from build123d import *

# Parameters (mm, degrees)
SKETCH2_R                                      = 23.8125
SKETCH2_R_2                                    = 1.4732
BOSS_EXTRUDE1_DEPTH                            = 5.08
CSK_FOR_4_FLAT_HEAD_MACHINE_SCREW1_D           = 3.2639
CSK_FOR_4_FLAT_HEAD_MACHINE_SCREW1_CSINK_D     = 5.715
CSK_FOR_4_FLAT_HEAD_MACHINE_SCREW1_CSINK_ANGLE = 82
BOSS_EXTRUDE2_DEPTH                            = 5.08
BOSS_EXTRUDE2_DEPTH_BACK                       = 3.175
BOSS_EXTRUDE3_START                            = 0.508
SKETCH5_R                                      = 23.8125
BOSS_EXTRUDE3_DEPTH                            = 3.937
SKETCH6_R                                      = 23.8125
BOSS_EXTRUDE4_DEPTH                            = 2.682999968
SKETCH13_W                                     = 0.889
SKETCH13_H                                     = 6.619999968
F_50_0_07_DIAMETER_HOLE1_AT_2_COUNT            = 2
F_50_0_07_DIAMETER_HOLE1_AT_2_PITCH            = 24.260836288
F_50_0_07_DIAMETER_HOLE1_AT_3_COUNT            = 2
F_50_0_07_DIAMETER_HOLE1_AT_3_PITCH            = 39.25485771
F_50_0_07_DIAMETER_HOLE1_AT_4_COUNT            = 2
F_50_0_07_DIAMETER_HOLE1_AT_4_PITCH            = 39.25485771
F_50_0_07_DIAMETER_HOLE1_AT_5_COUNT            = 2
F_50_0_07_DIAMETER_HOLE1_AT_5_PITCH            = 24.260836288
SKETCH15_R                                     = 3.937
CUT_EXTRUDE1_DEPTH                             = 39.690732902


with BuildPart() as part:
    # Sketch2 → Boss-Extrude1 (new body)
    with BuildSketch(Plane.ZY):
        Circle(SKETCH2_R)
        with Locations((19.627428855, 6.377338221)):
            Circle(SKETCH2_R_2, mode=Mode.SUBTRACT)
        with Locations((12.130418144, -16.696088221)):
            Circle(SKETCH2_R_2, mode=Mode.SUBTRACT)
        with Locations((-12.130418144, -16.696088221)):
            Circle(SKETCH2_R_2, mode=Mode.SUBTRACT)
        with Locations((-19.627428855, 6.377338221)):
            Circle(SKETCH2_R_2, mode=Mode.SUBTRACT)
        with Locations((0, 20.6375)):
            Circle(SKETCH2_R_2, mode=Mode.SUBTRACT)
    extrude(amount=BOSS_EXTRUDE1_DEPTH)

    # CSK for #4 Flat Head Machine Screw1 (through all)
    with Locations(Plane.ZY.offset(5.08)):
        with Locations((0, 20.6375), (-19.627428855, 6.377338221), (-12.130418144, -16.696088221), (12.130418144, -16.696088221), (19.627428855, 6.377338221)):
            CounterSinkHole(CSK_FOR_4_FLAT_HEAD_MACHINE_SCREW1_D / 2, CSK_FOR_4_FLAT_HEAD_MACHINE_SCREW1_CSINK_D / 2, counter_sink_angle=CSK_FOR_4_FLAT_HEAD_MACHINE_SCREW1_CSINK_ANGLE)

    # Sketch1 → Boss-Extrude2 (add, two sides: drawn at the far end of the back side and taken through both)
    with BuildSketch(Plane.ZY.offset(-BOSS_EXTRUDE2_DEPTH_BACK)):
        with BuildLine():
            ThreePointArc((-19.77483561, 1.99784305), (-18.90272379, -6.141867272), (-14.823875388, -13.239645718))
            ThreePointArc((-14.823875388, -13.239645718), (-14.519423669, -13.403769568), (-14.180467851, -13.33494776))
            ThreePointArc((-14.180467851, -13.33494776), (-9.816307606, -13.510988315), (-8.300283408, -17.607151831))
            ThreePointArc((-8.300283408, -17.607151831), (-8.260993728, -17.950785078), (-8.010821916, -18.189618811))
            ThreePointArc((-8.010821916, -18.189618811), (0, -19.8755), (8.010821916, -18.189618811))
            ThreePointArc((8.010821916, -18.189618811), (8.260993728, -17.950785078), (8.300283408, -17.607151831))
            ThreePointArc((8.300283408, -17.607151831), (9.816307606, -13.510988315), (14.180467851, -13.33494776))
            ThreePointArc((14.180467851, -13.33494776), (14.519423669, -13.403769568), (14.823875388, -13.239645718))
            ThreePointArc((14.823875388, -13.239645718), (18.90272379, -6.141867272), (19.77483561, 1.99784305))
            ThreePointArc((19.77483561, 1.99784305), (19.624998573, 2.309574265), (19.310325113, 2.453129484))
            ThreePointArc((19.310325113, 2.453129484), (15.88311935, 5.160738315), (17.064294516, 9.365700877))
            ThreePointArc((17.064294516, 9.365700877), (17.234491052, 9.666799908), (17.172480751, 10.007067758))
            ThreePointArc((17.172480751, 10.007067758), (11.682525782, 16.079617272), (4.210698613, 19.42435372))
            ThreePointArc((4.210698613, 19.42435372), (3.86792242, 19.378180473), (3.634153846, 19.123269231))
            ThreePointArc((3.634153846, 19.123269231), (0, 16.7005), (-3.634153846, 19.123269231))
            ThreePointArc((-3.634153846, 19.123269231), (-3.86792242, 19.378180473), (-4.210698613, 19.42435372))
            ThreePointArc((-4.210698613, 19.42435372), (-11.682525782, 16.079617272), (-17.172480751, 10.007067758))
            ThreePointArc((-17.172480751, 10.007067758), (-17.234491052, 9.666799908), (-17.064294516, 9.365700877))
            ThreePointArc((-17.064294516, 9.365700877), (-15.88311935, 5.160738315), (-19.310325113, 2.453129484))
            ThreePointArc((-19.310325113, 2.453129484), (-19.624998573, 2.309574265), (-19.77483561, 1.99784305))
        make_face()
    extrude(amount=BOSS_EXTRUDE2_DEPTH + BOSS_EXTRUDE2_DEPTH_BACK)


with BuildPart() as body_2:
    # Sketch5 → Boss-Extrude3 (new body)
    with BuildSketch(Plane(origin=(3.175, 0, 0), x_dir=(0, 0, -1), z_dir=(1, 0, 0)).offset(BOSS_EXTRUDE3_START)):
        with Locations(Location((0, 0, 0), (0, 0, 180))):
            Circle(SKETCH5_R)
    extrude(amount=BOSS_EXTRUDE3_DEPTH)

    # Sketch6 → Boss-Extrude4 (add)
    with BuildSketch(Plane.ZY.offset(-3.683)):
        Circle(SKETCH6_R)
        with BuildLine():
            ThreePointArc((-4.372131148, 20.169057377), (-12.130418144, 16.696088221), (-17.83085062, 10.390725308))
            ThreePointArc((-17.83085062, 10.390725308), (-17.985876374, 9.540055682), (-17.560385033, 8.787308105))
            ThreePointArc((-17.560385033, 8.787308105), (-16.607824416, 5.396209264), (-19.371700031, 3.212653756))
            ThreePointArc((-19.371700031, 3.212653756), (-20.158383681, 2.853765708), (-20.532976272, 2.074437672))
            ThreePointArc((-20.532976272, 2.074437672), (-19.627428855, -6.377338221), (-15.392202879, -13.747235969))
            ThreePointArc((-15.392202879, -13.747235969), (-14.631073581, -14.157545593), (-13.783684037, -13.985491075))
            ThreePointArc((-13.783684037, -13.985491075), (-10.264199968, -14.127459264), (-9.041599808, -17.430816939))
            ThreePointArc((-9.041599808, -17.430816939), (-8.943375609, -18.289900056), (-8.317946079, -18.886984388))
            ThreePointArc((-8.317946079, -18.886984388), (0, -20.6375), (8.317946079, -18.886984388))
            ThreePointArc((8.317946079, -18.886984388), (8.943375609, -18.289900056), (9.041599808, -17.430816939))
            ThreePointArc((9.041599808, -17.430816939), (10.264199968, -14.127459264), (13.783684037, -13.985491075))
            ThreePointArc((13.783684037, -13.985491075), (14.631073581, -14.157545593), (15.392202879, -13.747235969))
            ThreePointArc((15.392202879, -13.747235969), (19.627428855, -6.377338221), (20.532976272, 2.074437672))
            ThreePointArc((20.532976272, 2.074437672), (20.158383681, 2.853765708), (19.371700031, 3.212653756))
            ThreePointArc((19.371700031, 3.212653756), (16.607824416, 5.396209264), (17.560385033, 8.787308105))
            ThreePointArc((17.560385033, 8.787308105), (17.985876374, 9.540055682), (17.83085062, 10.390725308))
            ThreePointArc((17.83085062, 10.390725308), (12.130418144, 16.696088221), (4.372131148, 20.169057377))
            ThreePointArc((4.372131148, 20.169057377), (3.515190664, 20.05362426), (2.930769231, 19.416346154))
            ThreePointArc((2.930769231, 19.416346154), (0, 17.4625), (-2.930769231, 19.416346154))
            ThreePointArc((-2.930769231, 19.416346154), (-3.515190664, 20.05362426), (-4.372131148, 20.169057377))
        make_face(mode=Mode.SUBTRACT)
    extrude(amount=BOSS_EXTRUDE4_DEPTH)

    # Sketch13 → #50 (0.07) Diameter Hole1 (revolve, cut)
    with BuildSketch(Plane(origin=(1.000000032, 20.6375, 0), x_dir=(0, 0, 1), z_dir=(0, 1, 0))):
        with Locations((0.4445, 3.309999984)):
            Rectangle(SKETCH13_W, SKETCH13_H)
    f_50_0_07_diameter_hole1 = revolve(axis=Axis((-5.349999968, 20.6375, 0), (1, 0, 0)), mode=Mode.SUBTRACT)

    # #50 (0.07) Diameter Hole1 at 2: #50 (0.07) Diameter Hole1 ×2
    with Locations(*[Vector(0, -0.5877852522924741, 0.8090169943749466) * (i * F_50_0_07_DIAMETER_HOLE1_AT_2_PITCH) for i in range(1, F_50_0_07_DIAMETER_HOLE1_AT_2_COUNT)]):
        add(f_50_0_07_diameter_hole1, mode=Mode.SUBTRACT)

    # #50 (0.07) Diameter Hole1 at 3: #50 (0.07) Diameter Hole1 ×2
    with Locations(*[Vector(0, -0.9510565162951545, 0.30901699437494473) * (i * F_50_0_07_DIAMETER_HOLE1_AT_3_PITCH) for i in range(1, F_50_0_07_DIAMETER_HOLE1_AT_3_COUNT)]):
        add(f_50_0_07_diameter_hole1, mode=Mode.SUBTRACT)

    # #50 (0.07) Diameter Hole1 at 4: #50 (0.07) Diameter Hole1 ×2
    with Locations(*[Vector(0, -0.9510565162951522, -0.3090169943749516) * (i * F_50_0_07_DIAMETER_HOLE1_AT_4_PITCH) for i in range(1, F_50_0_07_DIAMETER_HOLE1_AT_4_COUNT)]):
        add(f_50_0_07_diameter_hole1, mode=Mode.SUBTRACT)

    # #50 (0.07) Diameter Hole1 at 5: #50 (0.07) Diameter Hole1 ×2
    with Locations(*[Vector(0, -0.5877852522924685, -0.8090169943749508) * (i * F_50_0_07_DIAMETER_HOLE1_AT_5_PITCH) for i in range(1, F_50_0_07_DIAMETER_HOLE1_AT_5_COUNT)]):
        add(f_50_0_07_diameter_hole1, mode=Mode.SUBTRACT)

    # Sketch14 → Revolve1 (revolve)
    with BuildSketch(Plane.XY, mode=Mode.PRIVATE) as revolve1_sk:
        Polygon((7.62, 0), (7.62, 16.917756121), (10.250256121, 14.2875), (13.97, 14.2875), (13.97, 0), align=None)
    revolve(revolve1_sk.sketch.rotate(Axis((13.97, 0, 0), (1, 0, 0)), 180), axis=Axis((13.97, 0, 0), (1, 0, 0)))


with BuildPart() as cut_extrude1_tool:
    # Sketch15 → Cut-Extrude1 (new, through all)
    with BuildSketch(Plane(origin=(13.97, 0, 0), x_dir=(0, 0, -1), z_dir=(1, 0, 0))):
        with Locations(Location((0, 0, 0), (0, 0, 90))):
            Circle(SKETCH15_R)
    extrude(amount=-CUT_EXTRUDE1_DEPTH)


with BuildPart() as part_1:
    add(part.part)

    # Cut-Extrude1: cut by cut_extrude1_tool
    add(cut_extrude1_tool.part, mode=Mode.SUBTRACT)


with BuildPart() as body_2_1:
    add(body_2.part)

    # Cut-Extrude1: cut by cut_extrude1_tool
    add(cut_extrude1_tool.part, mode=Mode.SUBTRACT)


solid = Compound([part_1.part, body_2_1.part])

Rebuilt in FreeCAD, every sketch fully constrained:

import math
import FreeCAD as App
import Part
import Sketcher

V = App.Vector
Q = App.Units.Quantity


def add_polygon(sketch, points):
    """Adds a closed chain of lines whose ends are joined by coincident constraints."""
    first, n = sketch.GeometryCount, len(points)
    for a, b in zip(points, points[1:] + points[:1]):
        sketch.addGeometry(Part.LineSegment(App.Vector(*a, 0), App.Vector(*b, 0)), False)
    for i in range(n):
        sketch.addConstraint(Sketcher.Constraint("Coincident", first + i, 2, first + (i + 1) % n, 1))

doc = App.newDocument("Part")
params = doc.addObject("Spreadsheet::Sheet", "Params")
for row, (alias, value) in enumerate([
    ("sketch1_diameter", "1.875 in"),
    ("sketch1_diameter2", "0.116 in"),
    ("pad1_length", "0.2 in"),
    ("hole_diameter", "0.1285 in"),
    ("hole_csink_diameter", "0.225 in"),
    ("sketch3_radius", "0.02 in"),
    ("sketch3_radius2", "0.155 in"),
    ("pad2_length", "0.2 in"),
    ("pad2_length2", "0.125 in"),
    ("sketch4_diameter", "1.875 in"),
    ("pad3_length", "0.155 in"),
    ("sketch5_radius", "0.05 in"),
    ("sketch5_radius2", "0.05 in"),
    ("sketch5_radius3", "0.05 in"),
    ("sketch5_radius4", "0.05 in"),
    ("sketch5_radius5", "0.05 in"),
    ("pad4_length", "2.683 mm"),
    ("sketch6_height", "0.035 in"),
    ("groove_angle", "360 deg"),
    ("linearpattern_pitch", "24.260836 mm"),
    ("linearpattern2_pitch", "39.254858 mm"),
    ("linearpattern3_pitch", "39.254858 mm"),
    ("linearpattern4_pitch", "24.260836 mm"),
    ("sketch7_width", "0.25 in"),
    ("sketch7_height", "0.5625 in"),
    ("revolution_angle", "360 deg"),
    ("sketch8_diameter", "0.31 in"),
    ("pad5_length", "39.690733 mm"),
], start=1):
    params.set(f"A{row}", alias)
    params.set(f"B{row}", "=" + value)
    params.setAlias(f"B{row}", alias)

body = doc.addObject("PartDesign::Body", "Body")

sketch1 = doc.addObject("Sketcher::SketchObject", "Sketch")
body.addObject(sketch1)
sketch1.AttachmentSupport = (doc.YZ_Plane, [""])
sketch1.MapMode = "FlatFace"
sketch1.addGeometry(Part.Circle(V(0, 0, 0), V(0, 0, 1), 23.8), False)
sketch1.addGeometry(Part.Circle(V(-16.7, -12.1, 0), V(0, 0, 1), 1.5), False)
sketch1.addGeometry(Part.Circle(V(-16.7, 12.1, 0), V(0, 0, 1), 1.5), False)
sketch1.addGeometry(Part.Circle(V(6.4, -19.6, 0), V(0, 0, 1), 1.5), False)
sketch1.addGeometry(Part.Circle(V(6.4, 19.6, 0), V(0, 0, 1), 1.5), False)
sketch1.addGeometry(Part.Circle(V(20.6, 0, 0), V(0, 0, 1), 1.5), False)
sketch1.addConstraint(Sketcher.Constraint("Coincident", 0, 3, -1, 1))
sketch1.addConstraint(Sketcher.Constraint("Equal", 1, 2))
sketch1.addConstraint(Sketcher.Constraint("Equal", 2, 3))
sketch1.addConstraint(Sketcher.Constraint("Equal", 3, 4))
sketch1.addConstraint(Sketcher.Constraint("Equal", 4, 5))
sketch1.addConstraint(Sketcher.Constraint("Symmetric", 1, 3, 2, 3, -1))
sketch1.addConstraint(Sketcher.Constraint("Symmetric", 3, 3, 4, 3, -1))
sketch1.addConstraint(Sketcher.Constraint("PointOnObject", 5, 3, -1))
sketch1.addConstraint(Sketcher.Constraint("Diameter", 0, Q("1.875 in")))
sketch1.addConstraint(Sketcher.Constraint("Diameter", 1, Q("0.116 in")))
sketch1.addConstraint(Sketcher.Constraint("DistanceX", -1, 1, 5, 3, Q("0.8125 in")))
sketch1.addConstraint(Sketcher.Constraint("DistanceX", 1, 3, -1, 1, Q("16.696088 mm")))
sketch1.addConstraint(Sketcher.Constraint("DistanceY", 1, 3, -1, 1, Q("12.130418 mm")))
sketch1.addConstraint(Sketcher.Constraint("DistanceX", -1, 1, 3, 3, Q("6.377338 mm")))
sketch1.addConstraint(Sketcher.Constraint("DistanceY", 3, 3, -1, 1, Q("19.627429 mm")))
sketch1.setExpression("Constraints[8]", "Params.sketch1_diameter")
sketch1.setExpression("Constraints[9]", "Params.sketch1_diameter2")
pad1 = doc.addObject("PartDesign::Pad", "Pad")
body.addObject(pad1)
pad1.Profile = sketch1
pad1.setExpression("Length", "Params.pad1_length")
pad1.Reversed = True

sketch2 = doc.addObject("Sketcher::SketchObject", "Sketch001")
body.addObject(sketch2)
sketch2.AttachmentSupport = (doc.YZ_Plane, [""])
sketch2.MapMode = "FlatFace"
sketch2.AttachmentOffset = App.Placement(V(0, 0, -0.2 * 25.4), App.Rotation())
sketch2.addGeometry(Part.Circle(V(20.6, 0, 0), V(0, 0, 1), 1.6), False)
sketch2.addGeometry(Part.Circle(V(6.4, -19.6, 0), V(0, 0, 1), 1.6), False)
sketch2.addGeometry(Part.Circle(V(-16.7, -12.1, 0), V(0, 0, 1), 1.6), False)
sketch2.addGeometry(Part.Circle(V(-16.7, 12.1, 0), V(0, 0, 1), 1.6), False)
sketch2.addGeometry(Part.Circle(V(6.4, 19.6, 0), V(0, 0, 1), 1.6), False)
sketch2.addConstraint(Sketcher.Constraint("Equal", 0, 1))
sketch2.addConstraint(Sketcher.Constraint("Equal", 1, 2))
sketch2.addConstraint(Sketcher.Constraint("Equal", 2, 3))
sketch2.addConstraint(Sketcher.Constraint("Equal", 3, 4))
sketch2.addConstraint(Sketcher.Constraint("Symmetric", 2, 3, 3, 3, -1))
sketch2.addConstraint(Sketcher.Constraint("Symmetric", 1, 3, 4, 3, -1))
sketch2.addConstraint(Sketcher.Constraint("PointOnObject", 0, 3, -1))
sketch2.addConstraint(Sketcher.Constraint("Diameter", 0, Q("0.1285 in")))
sketch2.addConstraint(Sketcher.Constraint("DistanceX", -1, 1, 0, 3, Q("0.8125 in")))
sketch2.addConstraint(Sketcher.Constraint("DistanceX", -1, 1, 1, 3, Q("6.377338 mm")))
sketch2.addConstraint(Sketcher.Constraint("DistanceY", 1, 3, -1, 1, Q("19.627429 mm")))
sketch2.addConstraint(Sketcher.Constraint("DistanceX", 2, 3, -1, 1, Q("16.696088 mm")))
sketch2.addConstraint(Sketcher.Constraint("DistanceY", 2, 3, -1, 1, Q("12.130418 mm")))
doc.recompute()
hole = doc.addObject("PartDesign::Hole", "Hole")
body.addObject(hole)
hole.Profile = sketch2
hole.ThreadType = "None"
hole.setExpression("Diameter", "Params.hole_diameter")
hole.DepthType = "ThroughAll"
hole.HoleCutType = "Countersink"
hole.setExpression("HoleCutDiameter", "Params.hole_csink_diameter")
hole.HoleCutCountersinkAngle = 82
hole.Reversed = True

sketch3 = doc.addObject("Sketcher::SketchObject", "Sketch002")
body.addObject(sketch3)
sketch3.AttachmentSupport = (doc.YZ_Plane, [""])
sketch3.MapMode = "FlatFace"
sketch3.addGeometry(Part.ArcOfCircle(Part.Circle(V(0, 0, 0), V(0, 0, 1), 19.9), math.radians(-132), math.radians(-84)), False)
sketch3.addGeometry(Part.ArcOfCircle(Part.Circle(V(-12.9, -14.4, 0), V(0, 0, 1), 0.5), math.radians(149), math.radians(228)), False)
sketch3.addGeometry(Part.ArcOfCircle(Part.Circle(V(-16.7, -12.1, 0), V(0, 0, 1), 3.9), math.radians(-31), math.radians(103)), False)
sketch3.addGeometry(Part.ArcOfCircle(Part.Circle(V(-17.7, -7.8, 0), V(0, 0, 1), 0.5), math.radians(-156), math.radians(-77)), False)
sketch3.addGeometry(Part.ArcOfCircle(Part.Circle(V(0, 0, 0), V(0, 0, 1), 19.9), math.radians(156), math.radians(204)), False)
sketch3.addGeometry(Part.ArcOfCircle(Part.Circle(V(-17.7, 7.8, 0), V(0, 0, 1), 0.5), math.radians(77), math.radians(156)), False)
sketch3.addGeometry(Part.ArcOfCircle(Part.Circle(V(-16.7, 12.1, 0), V(0, 0, 1), 3.9), math.radians(-103), math.radians(31)), False)
sketch3.addGeometry(Part.ArcOfCircle(Part.Circle(V(-12.9, 14.4, 0), V(0, 0, 1), 0.5), math.radians(132), math.radians(211)), False)
sketch3.addGeometry(Part.ArcOfCircle(Part.Circle(V(0, 0, 0), V(0, 0, 1), 19.9), math.radians(84), math.radians(132)), False)
sketch3.addGeometry(Part.ArcOfCircle(Part.Circle(V(1.9, 19.3, 0), V(0, 0, 1), 0.5), math.radians(5), math.radians(84)), False)
sketch3.addGeometry(Part.ArcOfCircle(Part.Circle(V(6.4, 19.6, 0), V(0, 0, 1), 3.9), math.radians(-175), math.radians(-41)), False)
sketch3.addGeometry(Part.ArcOfCircle(Part.Circle(V(9.8, 16.7, 0), V(0, 0, 1), 0.5), math.radians(60), math.radians(139)), False)
sketch3.addGeometry(Part.ArcOfCircle(Part.Circle(V(0, 0, 0), V(0, 0, 1), 19.9), math.radians(12), math.radians(60)), False)
sketch3.addGeometry(Part.ArcOfCircle(Part.Circle(V(18.9, 4.1, 0), V(0, 0, 1), 0.5), math.radians(-67), math.radians(12)), False)
sketch3.addGeometry(Part.ArcOfCircle(Part.Circle(V(20.6, 0, 0), V(0, 0, 1), 3.9), math.radians(113), math.radians(247)), False)
sketch3.addGeometry(Part.ArcOfCircle(Part.Circle(V(18.9, -4.1, 0), V(0, 0, 1), 0.5), math.radians(-12), math.radians(67)), False)
sketch3.addGeometry(Part.ArcOfCircle(Part.Circle(V(0, 0, 0), V(0, 0, 1), 19.9), math.radians(-60), math.radians(-12)), False)
sketch3.addGeometry(Part.ArcOfCircle(Part.Circle(V(9.8, -16.7, 0), V(0, 0, 1), 0.5), math.radians(-139), math.radians(-60)), False)
sketch3.addGeometry(Part.ArcOfCircle(Part.Circle(V(6.4, -19.6, 0), V(0, 0, 1), 3.9), math.radians(41), math.radians(175)), False)
sketch3.addGeometry(Part.ArcOfCircle(Part.Circle(V(1.9, -19.3, 0), V(0, 0, 1), 0.5), math.radians(-84), math.radians(-5)), False)
sketch3.addConstraint(Sketcher.Constraint("Tangent", 0, 1, 1, 2))
sketch3.addConstraint(Sketcher.Constraint("Tangent", 1, 1, 2, 1))
sketch3.addConstraint(Sketcher.Constraint("Tangent", 2, 2, 3, 2))
sketch3.addConstraint(Sketcher.Constraint("Tangent", 3, 1, 4, 2))
sketch3.addConstraint(Sketcher.Constraint("Tangent", 4, 1, 5, 2))
sketch3.addConstraint(Sketcher.Constraint("Tangent", 5, 1, 6, 1))
sketch3.addConstraint(Sketcher.Constraint("Tangent", 6, 2, 7, 2))
sketch3.addConstraint(Sketcher.Constraint("Tangent", 7, 1, 8, 2))
sketch3.addConstraint(Sketcher.Constraint("Tangent", 8, 1, 9, 2))
sketch3.addConstraint(Sketcher.Constraint("Tangent", 9, 1, 10, 1))
sketch3.addConstraint(Sketcher.Constraint("Tangent", 10, 2, 11, 2))
sketch3.addConstraint(Sketcher.Constraint("Tangent", 11, 1, 12, 2))
sketch3.addConstraint(Sketcher.Constraint("Tangent", 12, 1, 13, 2))
sketch3.addConstraint(Sketcher.Constraint("Tangent", 13, 1, 14, 1))
sketch3.addConstraint(Sketcher.Constraint("Tangent", 14, 2, 15, 2))
sketch3.addConstraint(Sketcher.Constraint("Tangent", 15, 1, 16, 2))
sketch3.addConstraint(Sketcher.Constraint("Tangent", 16, 1, 17, 2))
sketch3.addConstraint(Sketcher.Constraint("Tangent", 17, 1, 18, 1))
sketch3.addConstraint(Sketcher.Constraint("Tangent", 18, 2, 19, 2))
sketch3.addConstraint(Sketcher.Constraint("Tangent", 19, 1, 0, 2))
sketch3.addConstraint(Sketcher.Constraint("Coincident", 0, 3, -1, 1))
sketch3.addConstraint(Sketcher.Constraint("Coincident", 4, 3, -1, 1))
sketch3.addConstraint(Sketcher.Constraint("Coincident", 8, 3, -1, 1))
sketch3.addConstraint(Sketcher.Constraint("Coincident", 12, 3, -1, 1))
sketch3.addConstraint(Sketcher.Constraint("Coincident", 16, 3, -1, 1))
sketch3.addConstraint(Sketcher.Constraint("Equal", 1, 3))
sketch3.addConstraint(Sketcher.Constraint("Equal", 0, 4))
sketch3.addConstraint(Sketcher.Constraint("Equal", 3, 5))
sketch3.addConstraint(Sketcher.Constraint("Equal", 2, 6))
sketch3.addConstraint(Sketcher.Constraint("Equal", 5, 7))
sketch3.addConstraint(Sketcher.Constraint("Equal", 4, 8))
sketch3.addConstraint(Sketcher.Constraint("Equal", 7, 9))
sketch3.addConstraint(Sketcher.Constraint("Equal", 6, 10))
sketch3.addConstraint(Sketcher.Constraint("Equal", 9, 11))
sketch3.addConstraint(Sketcher.Constraint("Equal", 8, 12))
sketch3.addConstraint(Sketcher.Constraint("Equal", 11, 13))
sketch3.addConstraint(Sketcher.Constraint("Equal", 10, 14))
sketch3.addConstraint(Sketcher.Constraint("Equal", 13, 15))
sketch3.addConstraint(Sketcher.Constraint("Equal", 12, 16))
sketch3.addConstraint(Sketcher.Constraint("Equal", 15, 17))
sketch3.addConstraint(Sketcher.Constraint("Equal", 14, 18))
sketch3.addConstraint(Sketcher.Constraint("Equal", 17, 19))
sketch3.addConstraint(Sketcher.Constraint("Symmetric", 2, 3, 6, 3, -1))
sketch3.addConstraint(Sketcher.Constraint("Symmetric", 10, 3, 18, 3, -1))
sketch3.addConstraint(Sketcher.Constraint("PointOnObject", 14, 3, -1))
sketch3.addConstraint(Sketcher.Constraint("Radius", 1, Q("0.02 in")))
sketch3.addConstraint(Sketcher.Constraint("Radius", 2, Q("0.155 in")))
sketch3.addConstraint(Sketcher.Constraint("Radius", 0, Q("0.7825 in")))
sketch3.addConstraint(Sketcher.Constraint("DistanceX", -1, 1, 14, 3, Q("0.8125 in")))
sketch3.addConstraint(Sketcher.Constraint("DistanceX", 3, 3, 1, 3, Q("0.1898999 in")))
sketch3.addConstraint(Sketcher.Constraint("DistanceX", -1, 1, 10, 2, Q("9.365701 mm")))
sketch3.addConstraint(Sketcher.Constraint("DistanceX", 2, 2, 1, 3, Q("4.7059 mm")))
sketch3.addConstraint(Sketcher.Constraint("DistanceX", -1, 1, 9, 3, Q("1.94678 mm")))
sketch3.setExpression("Constraints[45]", "Params.sketch3_radius")
sketch3.setExpression("Constraints[46]", "Params.sketch3_radius2")
pad2 = doc.addObject("PartDesign::Pad", "Pad001")
body.addObject(pad2)
pad2.Profile = sketch3
pad2.Type = "TwoLengths"
pad2.setExpression("Length", "Params.pad2_length")
pad2.setExpression("Length2", "Params.pad2_length2")
pad2.Reversed = True
body2 = doc.addObject("PartDesign::Body", "Body001")

sketch4 = doc.addObject("Sketcher::SketchObject", "Sketch003")
body2.addObject(sketch4)
sketch4.AttachmentSupport = (doc.getObject("YZ_Plane001"), [""])
sketch4.MapMode = "FlatFace"
sketch4.AttachmentOffset = App.Placement(V(0, 0, 0.145 * 25.4), App.Rotation())
sketch4.addGeometry(Part.Circle(V(0, 0, 0), V(0, 0, 1), 24), False)
sketch4.addConstraint(Sketcher.Constraint("Coincident", 0, 3, -1, 1))
sketch4.addConstraint(Sketcher.Constraint("Diameter", 0, Q("1.875 in")))
sketch4.setExpression("Constraints[1]", "Params.sketch4_diameter")
pad3 = doc.addObject("PartDesign::Pad", "Pad002")
body2.addObject(pad3)
pad3.Profile = sketch4
pad3.setExpression("Length", "Params.pad3_length")

sketch5 = doc.addObject("Sketcher::SketchObject", "Sketch004")
body2.addObject(sketch5)
sketch5.AttachmentSupport = (doc.getObject("YZ_Plane001"), [""])
sketch5.MapMode = "FlatFace"
sketch5.AttachmentOffset = App.Placement(V(0, 0, 0.145 * 25.4), App.Rotation())
sketch5.addGeometry(Part.Circle(V(0, 0, 0), V(0, 0, 1), 23.8125), False)
sketch5.addGeometry(Part.ArcOfCircle(Part.Circle(V(0, 0, 0), V(0, 0, 1), 20.6375), math.radians(-59.768993), math.radians(-12.231007)), False)
sketch5.addGeometry(Part.ArcOfCircle(Part.Circle(V(18.927885, -4.103077, 0), V(0, 0, 1), 1.27), math.radians(-12.231007), math.radians(67.380135)), False)
sketch5.addGeometry(Part.ArcOfCircle(Part.Circle(V(20.6375, 0, 0), V(0, 0, 1), 3.175), math.radians(112.619865), math.radians(247.380135)), False)
sketch5.addGeometry(Part.ArcOfCircle(Part.Circle(V(18.927885, 4.103077, 0), V(0, 0, 1), 1.27), math.radians(-67.380135), math.radians(12.231007)), False)
sketch5.addGeometry(Part.ArcOfCircle(Part.Circle(V(0, 0, 0), V(0, 0, 1), 20.6375), math.radians(12.231007), math.radians(59.768993)), False)
sketch5.addGeometry(Part.ArcOfCircle(Part.Circle(V(9.751296, 16.733568, 0), V(0, 0, 1), 1.27), math.radians(59.768993), math.radians(139.380135)), False)
sketch5.addGeometry(Part.ArcOfCircle(Part.Circle(V(6.377338, 19.627429, 0), V(0, 0, 1), 3.175), math.radians(-175.380135), math.radians(-40.619865)), False)
sketch5.addGeometry(Part.ArcOfCircle(Part.Circle(V(1.94678, 19.269409, 0), V(0, 0, 1), 1.27), math.radians(4.619865), math.radians(84.231007)), False)
sketch5.addGeometry(Part.ArcOfCircle(Part.Circle(V(0, 0, 0), V(0, 0, 1), 20.6375), math.radians(84.231007), math.radians(131.768993)), False)
sketch5.addGeometry(Part.ArcOfCircle(Part.Circle(V(-12.901252, 14.44499, 0), V(0, 0, 1), 1.27), math.radians(131.768993), math.radians(211.380135)), False)
sketch5.addGeometry(Part.ArcOfCircle(Part.Circle(V(-16.696088, 12.130418, 0), V(0, 0, 1), 3.175), math.radians(-103.380135), math.radians(31.380135)), False)
sketch5.addGeometry(Part.ArcOfCircle(Part.Circle(V(-17.724708, 7.806072, 0), V(0, 0, 1), 1.27), math.radians(76.619865), math.radians(156.231007)), False)
sketch5.addGeometry(Part.ArcOfCircle(Part.Circle(V(0, 0, 0), V(0, 0, 1), 20.6375), math.radians(156.231007), math.radians(203.768993)), False)
sketch5.addGeometry(Part.ArcOfCircle(Part.Circle(V(-17.724708, -7.806072, 0), V(0, 0, 1), 1.27), math.radians(-156.231007), math.radians(-76.619865)), False)
sketch5.addGeometry(Part.ArcOfCircle(Part.Circle(V(-16.696088, -12.130418, 0), V(0, 0, 1), 3.175), math.radians(-31.380135), math.radians(103.380135)), False)
sketch5.addGeometry(Part.ArcOfCircle(Part.Circle(V(-12.901252, -14.44499, 0), V(0, 0, 1), 1.27), math.radians(148.619865), math.radians(228.231007)), False)
sketch5.addGeometry(Part.ArcOfCircle(Part.Circle(V(0, 0, 0), V(0, 0, 1), 20.6375), math.radians(-131.768993), math.radians(-84.231007)), False)
sketch5.addGeometry(Part.ArcOfCircle(Part.Circle(V(1.94678, -19.269409, 0), V(0, 0, 1), 1.27), math.radians(-84.231007), math.radians(-4.619865)), False)
sketch5.addGeometry(Part.ArcOfCircle(Part.Circle(V(6.377338, -19.627429, 0), V(0, 0, 1), 3.175), math.radians(40.619865), math.radians(175.380135)), False)
sketch5.addGeometry(Part.ArcOfCircle(Part.Circle(V(9.751296, -16.733568, 0), V(0, 0, 1), 1.27), math.radians(-139.380135), math.radians(-59.768993)), False)
sketch5.addConstraint(Sketcher.Constraint("Coincident", 1, 2, 2, 1))
sketch5.addConstraint(Sketcher.Constraint("Coincident", 2, 2, 3, 2))
sketch5.addConstraint(Sketcher.Constraint("Coincident", 3, 1, 4, 1))
sketch5.addConstraint(Sketcher.Constraint("Coincident", 4, 2, 5, 1))
sketch5.addConstraint(Sketcher.Constraint("Coincident", 5, 2, 6, 1))
sketch5.addConstraint(Sketcher.Constraint("Coincident", 6, 2, 7, 2))
sketch5.addConstraint(Sketcher.Constraint("Coincident", 7, 1, 8, 1))
sketch5.addConstraint(Sketcher.Constraint("Coincident", 8, 2, 9, 1))
sketch5.addConstraint(Sketcher.Constraint("Coincident", 9, 2, 10, 1))
sketch5.addConstraint(Sketcher.Constraint("Coincident", 10, 2, 11, 2))
sketch5.addConstraint(Sketcher.Constraint("Coincident", 11, 1, 12, 1))
sketch5.addConstraint(Sketcher.Constraint("Coincident", 12, 2, 13, 1))
sketch5.addConstraint(Sketcher.Constraint("Coincident", 13, 2, 14, 1))
sketch5.addConstraint(Sketcher.Constraint("Coincident", 14, 2, 15, 2))
sketch5.addConstraint(Sketcher.Constraint("Coincident", 15, 1, 16, 1))
sketch5.addConstraint(Sketcher.Constraint("Coincident", 16, 2, 17, 1))
sketch5.addConstraint(Sketcher.Constraint("Coincident", 17, 2, 18, 1))
sketch5.addConstraint(Sketcher.Constraint("Coincident", 18, 2, 19, 2))
sketch5.addConstraint(Sketcher.Constraint("Coincident", 19, 1, 20, 1))
sketch5.addConstraint(Sketcher.Constraint("Coincident", 20, 2, 1, 1))
sketch5.addConstraint(Sketcher.Constraint("Coincident", 0, 3, -1, 1))
sketch5.addConstraint(Sketcher.Constraint("Coincident", 1, 3, -1, 1))
sketch5.addConstraint(Sketcher.Constraint("Coincident", 5, 3, -1, 1))
sketch5.addConstraint(Sketcher.Constraint("Coincident", 9, 3, -1, 1))
sketch5.addConstraint(Sketcher.Constraint("Coincident", 13, 3, -1, 1))
sketch5.addConstraint(Sketcher.Constraint("Coincident", 17, 3, -1, 1))
sketch5.addConstraint(Sketcher.Constraint("PointOnObject", 3, 3, -1))
sketch5.addConstraint(Sketcher.Constraint("Radius", 2, Q("0.05 in")))
sketch5.addConstraint(Sketcher.Constraint("Radius", 4, Q("0.05 in")))
sketch5.addConstraint(Sketcher.Constraint("Radius", 6, Q("0.05 in")))
sketch5.addConstraint(Sketcher.Constraint("Radius", 8, Q("0.05 in")))
sketch5.addConstraint(Sketcher.Constraint("Radius", 10, Q("0.05 in")))
sketch5.addConstraint(Sketcher.Constraint("Radius", 12, Q("0.05 in")))
sketch5.addConstraint(Sketcher.Constraint("Radius", 14, Q("0.05 in")))
sketch5.addConstraint(Sketcher.Constraint("Radius", 16, Q("0.05 in")))
sketch5.addConstraint(Sketcher.Constraint("Radius", 18, Q("0.05 in")))
sketch5.addConstraint(Sketcher.Constraint("Radius", 20, Q("0.05 in")))
sketch5.addConstraint(Sketcher.Constraint("Diameter", 0, Q("1.875 in")))
sketch5.addConstraint(Sketcher.Constraint("Radius", 1, Q("0.8125 in")))
sketch5.addConstraint(Sketcher.Constraint("Radius", 3, Q("0.125 in")))
sketch5.addConstraint(Sketcher.Constraint("Radius", 5, Q("0.8125 in")))
sketch5.addConstraint(Sketcher.Constraint("Radius", 7, Q("0.125 in")))
sketch5.addConstraint(Sketcher.Constraint("Radius", 9, Q("0.8125 in")))
sketch5.addConstraint(Sketcher.Constraint("Radius", 11, Q("0.125 in")))
sketch5.addConstraint(Sketcher.Constraint("Radius", 13, Q("0.8125 in")))
sketch5.addConstraint(Sketcher.Constraint("Radius", 15, Q("0.125 in")))
sketch5.addConstraint(Sketcher.Constraint("Radius", 17, Q("0.8125 in")))
sketch5.addConstraint(Sketcher.Constraint("Radius", 19, Q("0.125 in")))
sketch5.addConstraint(Sketcher.Constraint("DistanceX", -1, 1, 3, 3, Q("0.8125 in")))
sketch5.addConstraint(Sketcher.Constraint("DistanceX", 12, 3, 10, 3, Q("0.1898999 in")))
sketch5.addConstraint(Sketcher.Constraint("DistanceX", 14, 3, 16, 3, Q("0.1898999 in")))
sketch5.addConstraint(Sketcher.Constraint("DistanceY", 6, 3, 5, 2, Q("0.0432001 in")))
sketch5.addConstraint(Sketcher.Constraint("DistanceY", 20, 2, 20, 3, Q("0.0432001 in")))
sketch5.addConstraint(Sketcher.Constraint("DistanceY", -1, 1, 7, 1, Q("19.3717 mm")))
sketch5.addConstraint(Sketcher.Constraint("DistanceY", -1, 1, 11, 1, Q("9.0416 mm")))
sketch5.addConstraint(Sketcher.Constraint("DistanceY", 14, 2, -1, 1, Q("9.0416 mm")))
sketch5.addConstraint(Sketcher.Constraint("DistanceY", 18, 2, -1, 1, Q("19.3717 mm")))
sketch5.addConstraint(Sketcher.Constraint("DistanceY", 20, 3, 2, 2, Q("13.802798 mm")))
sketch5.addConstraint(Sketcher.Constraint("DistanceY", 1, 2, 3, 1, Q("7.3029 mm")))
sketch5.addConstraint(Sketcher.Constraint("DistanceY", 2, 2, 4, 2, Q("7.3029 mm")))
sketch5.addConstraint(Sketcher.Constraint("DistanceX", 8, 2, 7, 3, Q("4.302901 mm")))
sketch5.addConstraint(Sketcher.Constraint("DistanceX", 17, 2, 19, 3, Q("4.302901 mm")))
sketch5.addConstraint(Sketcher.Constraint("DistanceX", -1, 1, 7, 3, Q("6.377338 mm")))
sketch5.addConstraint(Sketcher.Constraint("DistanceY", -1, 1, 7, 3, Q("19.627429 mm")))
sketch5.addConstraint(Sketcher.Constraint("DistanceY", -1, 1, 10, 3, Q("14.44499 mm")))
sketch5.addConstraint(Sketcher.Constraint("DistanceX", 14, 3, -1, 1, Q("17.724708 mm")))
sketch5.addConstraint(Sketcher.Constraint("DistanceX", -1, 1, 18, 3, Q("1.94678 mm")))
sketch5.addConstraint(Sketcher.Constraint("DistanceX", -1, 1, 19, 3, Q("6.377338 mm")))
sketch5.addConstraint(Sketcher.Constraint("DistanceY", 1, 2, -1, 1, Q("4.372131 mm")))
sketch5.addConstraint(Sketcher.Constraint("DistanceX", -1, 1, 6, 2, Q("8.787308 mm")))
sketch5.addConstraint(Sketcher.Constraint("DistanceX", 10, 2, -1, 1, Q("13.985491 mm")))
sketch5.addConstraint(Sketcher.Constraint("DistanceX", 15, 1, -1, 1, Q("13.985491 mm")))
sketch5.addConstraint(Sketcher.Constraint("DistanceX", -1, 1, 19, 1, Q("8.787308 mm")))
sketch5.addConstraint(Sketcher.Constraint("DistanceY", 12, 3, 9, 2, Q("7.58613 mm")))
sketch5.addConstraint(Sketcher.Constraint("DistanceY", 13, 2, 12, 3, Q("16.124019 mm")))
sketch5.addConstraint(Sketcher.Constraint("DistanceY", 16, 2, 15, 1, Q("1.608519 mm")))
sketch5.addConstraint(Sketcher.Constraint("DistanceX", 12, 2, -1, 1, Q("18.886984 mm")))
sketch5.setExpression("Constraints[27]", "Params.sketch5_radius")
sketch5.setExpression("Constraints[28]", "Params.sketch5_radius2")
sketch5.setExpression("Constraints[29]", "Params.sketch5_radius3")
sketch5.setExpression("Constraints[30]", "Params.sketch5_radius4")
sketch5.setExpression("Constraints[31]", "Params.sketch5_radius5")
pad4 = doc.addObject("PartDesign::Pad", "Pad003")
body2.addObject(pad4)
pad4.Profile = sketch5
pad4.setExpression("Length", "Params.pad4_length")
pad4.Reversed = True

sketch6 = doc.addObject("Sketcher::SketchObject", "Sketch005")
body2.addObject(sketch6)
sketch6.AttachmentSupport = (doc.getObject("XZ_Plane001"), [""])
sketch6.MapMode = "FlatFace"
sketch6.AttachmentOffset = App.Placement(V(0, 0, -0.8125 * 25.4), App.Rotation())
add_polygon(sketch6, [(7.6, 0), (1, 0), (1, 0.9), (7.6, 0.9)])
sketch6.addConstraint(Sketcher.Constraint("Horizontal", 0))
sketch6.addConstraint(Sketcher.Constraint("Vertical", 1))
sketch6.addConstraint(Sketcher.Constraint("Horizontal", 2))
sketch6.addConstraint(Sketcher.Constraint("Vertical", 3))
sketch6.addConstraint(Sketcher.Constraint("PointOnObject", 0, 2, -1))
sketch6.addConstraint(Sketcher.Constraint("DistanceX", -1, 1, 2, 2, Q("0.3 in")))
sketch6.addConstraint(Sketcher.Constraint("DistanceY", 1, 1, 1, 2, Q("0.035 in")))
sketch6.addConstraint(Sketcher.Constraint("DistanceX", 0, 2, 0, 1, Q("6.62 mm")))
sketch6.setExpression("Constraints[10]", "Params.sketch6_height")
groove = doc.addObject("PartDesign::Groove", "Groove")
body2.addObject(groove)
groove.Profile = sketch6
groove.ReferenceAxis = (sketch6, ["H_Axis"])
groove.setExpression("Angle", "Params.groove_angle")
doc.recompute()

datumline = doc.addObject("PartDesign::Line", "DatumLine")
body2.addObject(datumline)
datumline.Placement = App.Placement(V(0, 0, 0), App.Rotation(V(0, 0, 1), V(0, -0.587785252, 0.809016994)))
linearpattern = doc.addObject("PartDesign::LinearPattern", "LinearPattern")
body2.addObject(linearpattern)
linearpattern.Originals = [groove]
linearpattern.Direction = (datumline, [""])
linearpattern.Mode = "offset"
linearpattern.setExpression("Offset", "Params.linearpattern_pitch")
linearpattern.Occurrences = 2
body2.Tip = linearpattern
doc.recompute()

datumline2 = doc.addObject("PartDesign::Line", "DatumLine001")
body2.addObject(datumline2)
datumline2.Placement = App.Placement(V(0, 0, 0), App.Rotation(V(0, 0, 1), V(0, -0.951056516, 0.309016994)))
linearpattern2 = doc.addObject("PartDesign::LinearPattern", "LinearPattern001")
body2.addObject(linearpattern2)
linearpattern2.Originals = [groove]
linearpattern2.Direction = (datumline2, [""])
linearpattern2.Mode = "offset"
linearpattern2.setExpression("Offset", "Params.linearpattern2_pitch")
linearpattern2.Occurrences = 2
body2.Tip = linearpattern2
doc.recompute()

datumline3 = doc.addObject("PartDesign::Line", "DatumLine002")
body2.addObject(datumline3)
datumline3.Placement = App.Placement(V(0, 0, 0), App.Rotation(V(0, 0, 1), V(0, -0.951056516, -0.309016994)))
linearpattern3 = doc.addObject("PartDesign::LinearPattern", "LinearPattern002")
body2.addObject(linearpattern3)
linearpattern3.Originals = [groove]
linearpattern3.Direction = (datumline3, [""])
linearpattern3.Mode = "offset"
linearpattern3.setExpression("Offset", "Params.linearpattern3_pitch")
linearpattern3.Occurrences = 2
body2.Tip = linearpattern3
doc.recompute()

datumline4 = doc.addObject("PartDesign::Line", "DatumLine003")
body2.addObject(datumline4)
datumline4.Placement = App.Placement(V(0, 0, 0), App.Rotation(V(0, 0, 1), V(0, -0.587785252, -0.809016994)))
linearpattern4 = doc.addObject("PartDesign::LinearPattern", "LinearPattern003")
body2.addObject(linearpattern4)
linearpattern4.Originals = [groove]
linearpattern4.Direction = (datumline4, [""])
linearpattern4.Mode = "offset"
linearpattern4.setExpression("Offset", "Params.linearpattern4_pitch")
linearpattern4.Occurrences = 2
body2.Tip = linearpattern4

sketch7 = doc.addObject("Sketcher::SketchObject", "Sketch006")
body2.addObject(sketch7)
sketch7.AttachmentSupport = (doc.getObject("XY_Plane001"), [""])
sketch7.MapMode = "FlatFace"
add_polygon(sketch7, [(7.6, 16.9), (7.6, 0), (14, 0), (14, 14.3), (10.3, 14.3)])
sketch7.addConstraint(Sketcher.Constraint("Vertical", 0))
sketch7.addConstraint(Sketcher.Constraint("Horizontal", 1))
sketch7.addConstraint(Sketcher.Constraint("Vertical", 2))
sketch7.addConstraint(Sketcher.Constraint("Horizontal", 3))
sketch7.addConstraint(Sketcher.Constraint("PointOnObject", 0, 2, -1))
sketch7.addConstraint(Sketcher.Constraint("Angle", 4, Q("135 deg")))
sketch7.addConstraint(Sketcher.Constraint("DistanceX", 1, 1, 1, 2, Q("0.25 in")))
sketch7.addConstraint(Sketcher.Constraint("DistanceX", -1, 1, 0, 2, Q("0.3 in")))
sketch7.addConstraint(Sketcher.Constraint("DistanceY", 2, 1, 2, 2, Q("0.5625 in")))
sketch7.addConstraint(Sketcher.Constraint("DistanceX", 3, 2, 3, 1, Q("3.719744 mm")))
sketch7.setExpression("Constraints[11]", "Params.sketch7_width")
sketch7.setExpression("Constraints[13]", "Params.sketch7_height")
revolution = doc.addObject("PartDesign::Revolution", "Revolution")
body2.addObject(revolution)
revolution.Profile = sketch7
revolution.ReferenceAxis = (sketch7, ["H_Axis"])
revolution.setExpression("Angle", "Params.revolution_angle")
body3 = doc.addObject("PartDesign::Body", "Body002")

sketch8 = doc.addObject("Sketcher::SketchObject", "Sketch007")
body3.addObject(sketch8)
sketch8.AttachmentSupport = (doc.getObject("YZ_Plane002"), [""])
sketch8.MapMode = "FlatFace"
sketch8.AttachmentOffset = App.Placement(V(0, 0, 0.55 * 25.4), App.Rotation())
sketch8.addGeometry(Part.Circle(V(0, 0, 0), V(0, 0, 1), 3.9), False)
sketch8.addConstraint(Sketcher.Constraint("Coincident", 0, 3, -1, 1))
sketch8.addConstraint(Sketcher.Constraint("Diameter", 0, Q("0.31 in")))
sketch8.setExpression("Constraints[1]", "Params.sketch8_diameter")
pad5 = doc.addObject("PartDesign::Pad", "Pad004")
body3.addObject(pad5)
pad5.Profile = sketch8
pad5.setExpression("Length", "Params.pad5_length")
pad5.Reversed = True
doc.recompute()

body4 = doc.addObject("PartDesign::Body", "Body003")
body4.BaseFeature = body3
boolean = doc.addObject("PartDesign::Boolean", "Boolean")
body.addObject(boolean)
boolean.Type = "Cut"
boolean.addObjects([body4])
doc.recompute()

boolean2 = doc.addObject("PartDesign::Boolean", "Boolean001")
body2.addObject(boolean2)
boolean2.Type = "Cut"
boolean2.addObjects([body3])

doc.recompute()
